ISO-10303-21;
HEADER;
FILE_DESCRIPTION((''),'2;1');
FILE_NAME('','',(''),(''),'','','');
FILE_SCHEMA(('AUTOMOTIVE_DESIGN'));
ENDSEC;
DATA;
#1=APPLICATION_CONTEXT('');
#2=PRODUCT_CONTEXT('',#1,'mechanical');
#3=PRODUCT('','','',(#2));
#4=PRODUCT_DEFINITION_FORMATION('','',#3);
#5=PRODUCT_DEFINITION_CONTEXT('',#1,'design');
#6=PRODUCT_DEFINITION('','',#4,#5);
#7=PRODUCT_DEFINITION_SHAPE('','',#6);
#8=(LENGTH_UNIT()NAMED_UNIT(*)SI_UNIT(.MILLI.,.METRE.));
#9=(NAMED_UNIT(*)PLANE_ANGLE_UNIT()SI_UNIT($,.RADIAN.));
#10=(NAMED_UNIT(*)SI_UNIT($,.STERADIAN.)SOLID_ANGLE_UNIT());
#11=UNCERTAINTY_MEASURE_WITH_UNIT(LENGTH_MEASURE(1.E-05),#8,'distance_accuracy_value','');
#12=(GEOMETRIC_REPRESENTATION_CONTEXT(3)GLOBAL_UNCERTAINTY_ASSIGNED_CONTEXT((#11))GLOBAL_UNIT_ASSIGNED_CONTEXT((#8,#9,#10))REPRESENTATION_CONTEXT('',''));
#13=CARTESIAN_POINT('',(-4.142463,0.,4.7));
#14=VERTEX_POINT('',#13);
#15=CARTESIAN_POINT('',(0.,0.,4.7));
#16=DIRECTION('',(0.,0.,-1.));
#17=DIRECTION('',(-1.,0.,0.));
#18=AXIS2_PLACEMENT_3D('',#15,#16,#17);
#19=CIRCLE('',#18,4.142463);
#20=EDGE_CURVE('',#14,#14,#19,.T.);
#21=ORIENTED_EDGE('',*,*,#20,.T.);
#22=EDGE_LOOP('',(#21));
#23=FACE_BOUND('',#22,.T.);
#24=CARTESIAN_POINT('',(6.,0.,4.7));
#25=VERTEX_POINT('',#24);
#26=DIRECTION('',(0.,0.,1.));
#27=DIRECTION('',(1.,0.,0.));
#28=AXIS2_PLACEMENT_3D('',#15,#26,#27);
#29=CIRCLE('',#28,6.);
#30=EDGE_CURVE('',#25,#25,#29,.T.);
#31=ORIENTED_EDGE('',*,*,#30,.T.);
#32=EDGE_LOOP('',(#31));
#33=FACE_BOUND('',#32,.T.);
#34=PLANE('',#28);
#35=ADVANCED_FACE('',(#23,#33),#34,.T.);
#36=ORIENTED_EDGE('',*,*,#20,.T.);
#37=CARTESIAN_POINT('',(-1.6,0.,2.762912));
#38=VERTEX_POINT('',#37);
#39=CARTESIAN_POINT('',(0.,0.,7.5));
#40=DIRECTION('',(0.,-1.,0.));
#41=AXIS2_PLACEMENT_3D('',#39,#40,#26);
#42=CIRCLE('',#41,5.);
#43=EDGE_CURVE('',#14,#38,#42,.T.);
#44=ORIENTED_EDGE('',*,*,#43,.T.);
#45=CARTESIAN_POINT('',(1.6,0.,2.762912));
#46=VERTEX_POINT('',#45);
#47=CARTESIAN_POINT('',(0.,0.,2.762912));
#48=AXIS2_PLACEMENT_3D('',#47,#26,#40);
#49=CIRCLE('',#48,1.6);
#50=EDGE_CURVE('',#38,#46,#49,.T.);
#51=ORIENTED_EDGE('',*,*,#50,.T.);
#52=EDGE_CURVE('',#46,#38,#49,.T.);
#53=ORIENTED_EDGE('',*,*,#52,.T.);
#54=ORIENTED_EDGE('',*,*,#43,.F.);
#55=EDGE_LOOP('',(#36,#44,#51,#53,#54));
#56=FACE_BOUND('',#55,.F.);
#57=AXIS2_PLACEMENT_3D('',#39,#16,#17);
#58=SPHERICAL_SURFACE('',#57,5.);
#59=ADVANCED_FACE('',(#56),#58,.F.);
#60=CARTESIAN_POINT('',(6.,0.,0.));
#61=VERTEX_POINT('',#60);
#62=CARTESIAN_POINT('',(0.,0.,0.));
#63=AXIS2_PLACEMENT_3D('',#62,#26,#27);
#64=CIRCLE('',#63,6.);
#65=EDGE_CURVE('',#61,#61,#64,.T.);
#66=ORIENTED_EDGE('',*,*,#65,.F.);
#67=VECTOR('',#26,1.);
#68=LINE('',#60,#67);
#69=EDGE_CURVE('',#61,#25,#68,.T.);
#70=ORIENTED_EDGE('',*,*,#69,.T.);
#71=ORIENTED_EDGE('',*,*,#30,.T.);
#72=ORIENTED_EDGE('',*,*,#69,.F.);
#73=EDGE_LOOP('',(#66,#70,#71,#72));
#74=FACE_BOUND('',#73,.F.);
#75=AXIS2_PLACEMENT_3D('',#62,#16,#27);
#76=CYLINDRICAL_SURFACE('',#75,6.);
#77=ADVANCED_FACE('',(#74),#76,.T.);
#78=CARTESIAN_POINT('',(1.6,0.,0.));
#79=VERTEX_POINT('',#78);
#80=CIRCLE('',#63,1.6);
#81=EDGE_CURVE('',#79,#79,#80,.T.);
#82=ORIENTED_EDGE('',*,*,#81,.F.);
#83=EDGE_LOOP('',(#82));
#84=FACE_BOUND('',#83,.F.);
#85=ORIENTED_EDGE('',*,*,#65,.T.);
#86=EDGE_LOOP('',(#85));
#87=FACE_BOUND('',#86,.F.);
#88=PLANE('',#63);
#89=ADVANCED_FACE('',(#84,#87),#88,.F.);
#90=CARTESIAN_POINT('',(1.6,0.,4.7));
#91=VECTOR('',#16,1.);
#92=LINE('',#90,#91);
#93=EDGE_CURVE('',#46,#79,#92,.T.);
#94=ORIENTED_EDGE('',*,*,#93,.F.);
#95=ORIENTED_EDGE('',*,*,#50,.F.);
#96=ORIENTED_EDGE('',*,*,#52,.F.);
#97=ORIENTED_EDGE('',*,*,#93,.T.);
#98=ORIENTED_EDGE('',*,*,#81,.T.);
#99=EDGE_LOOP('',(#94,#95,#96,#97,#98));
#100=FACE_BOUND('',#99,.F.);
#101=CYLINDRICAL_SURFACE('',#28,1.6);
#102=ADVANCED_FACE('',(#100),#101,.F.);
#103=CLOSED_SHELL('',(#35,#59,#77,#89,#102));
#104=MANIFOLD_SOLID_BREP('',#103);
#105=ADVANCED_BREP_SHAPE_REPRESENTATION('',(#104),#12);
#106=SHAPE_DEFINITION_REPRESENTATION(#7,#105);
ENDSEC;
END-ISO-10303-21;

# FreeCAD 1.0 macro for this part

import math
import FreeCAD as App
import Part
import Sketcher
from FreeCAD import Vector
Q = App.Units.Quantity

doc = App.newDocument("Part")
body = doc.addObject("PartDesign::Body", "Body")

sketch1 = body.newObject("Sketcher::SketchObject", "Sketch")
sketch1.AttachmentSupport = (doc.getObject("XY_Plane"), [""])
sketch1.MapMode = "FlatFace"
sketch1.addGeometry(Part.Circle(Vector(0, 0, 0), Vector(0, 0, 1), 6), False)
sketch1.addConstraint([
    Sketcher.Constraint("Coincident", 0, 3, -1, 1),
    Sketcher.Constraint("Diameter", 0, Q("12 mm")),
])
pad1 = body.newObject("PartDesign::Pad", "Pad")
pad1.Profile = sketch1
pad1.Length = 4.7

sketch2 = body.newObject("Sketcher::SketchObject", "Sketch001")
sketch2.AttachmentSupport = (doc.getObject("XY_Plane"), [""])
sketch2.MapMode = "FlatFace"
sketch2.AttachmentOffset = App.Placement(Vector(0, 0, 4.7), App.Rotation())
sketch2.addGeometry(Part.Circle(Vector(0, 0, 0), Vector(0, 0, 1), 1.6), False)
sketch2.addConstraint([
    Sketcher.Constraint("Coincident", 0, 3, -1, 1),
    Sketcher.Constraint("Diameter", 0, Q("3.2 mm")),
])
pocket1 = body.newObject("PartDesign::Pocket", "Pocket")
pocket1.Profile = sketch2
pocket1.Length = 25

sketch3 = body.newObject("Sketcher::SketchObject", "Sketch002")
sketch3.AttachmentSupport = (doc.getObject("XZ_Plane"), [""])
sketch3.MapMode = "FlatFace"
sketch3.addGeometry([
    Part.LineSegment(Vector(0, 2.5, 0), Vector(0, 12.5, 0)),
    Part.ArcOfCircle(Part.Circle(Vector(0, 7.5, 0), Vector(0, 0, 1), 5), math.radians(90), math.radians(270)),
], False)
sketch3.addConstraint([
    Sketcher.Constraint("Coincident", 0, 1, 1, 2),
    Sketcher.Constraint("Coincident", 1, 1, 0, 2),
    Sketcher.Constraint("Vertical", 0),
    Sketcher.Constraint("PointOnObject", 1, 3, -2),
    Sketcher.Constraint("PointOnObject", 0, 1, -2),
    Sketcher.Constraint("Radius", 1, Q("5 mm")),
    Sketcher.Constraint("DistanceY", -1, 1, 1, 3, Q("7.5 mm")),
])
groove = body.newObject("PartDesign::Groove", "Groove")
groove.Profile = sketch3
groove.ReferenceAxis = (sketch3, ["V_Axis"])
groove.Angle = 360

doc.recompute()
